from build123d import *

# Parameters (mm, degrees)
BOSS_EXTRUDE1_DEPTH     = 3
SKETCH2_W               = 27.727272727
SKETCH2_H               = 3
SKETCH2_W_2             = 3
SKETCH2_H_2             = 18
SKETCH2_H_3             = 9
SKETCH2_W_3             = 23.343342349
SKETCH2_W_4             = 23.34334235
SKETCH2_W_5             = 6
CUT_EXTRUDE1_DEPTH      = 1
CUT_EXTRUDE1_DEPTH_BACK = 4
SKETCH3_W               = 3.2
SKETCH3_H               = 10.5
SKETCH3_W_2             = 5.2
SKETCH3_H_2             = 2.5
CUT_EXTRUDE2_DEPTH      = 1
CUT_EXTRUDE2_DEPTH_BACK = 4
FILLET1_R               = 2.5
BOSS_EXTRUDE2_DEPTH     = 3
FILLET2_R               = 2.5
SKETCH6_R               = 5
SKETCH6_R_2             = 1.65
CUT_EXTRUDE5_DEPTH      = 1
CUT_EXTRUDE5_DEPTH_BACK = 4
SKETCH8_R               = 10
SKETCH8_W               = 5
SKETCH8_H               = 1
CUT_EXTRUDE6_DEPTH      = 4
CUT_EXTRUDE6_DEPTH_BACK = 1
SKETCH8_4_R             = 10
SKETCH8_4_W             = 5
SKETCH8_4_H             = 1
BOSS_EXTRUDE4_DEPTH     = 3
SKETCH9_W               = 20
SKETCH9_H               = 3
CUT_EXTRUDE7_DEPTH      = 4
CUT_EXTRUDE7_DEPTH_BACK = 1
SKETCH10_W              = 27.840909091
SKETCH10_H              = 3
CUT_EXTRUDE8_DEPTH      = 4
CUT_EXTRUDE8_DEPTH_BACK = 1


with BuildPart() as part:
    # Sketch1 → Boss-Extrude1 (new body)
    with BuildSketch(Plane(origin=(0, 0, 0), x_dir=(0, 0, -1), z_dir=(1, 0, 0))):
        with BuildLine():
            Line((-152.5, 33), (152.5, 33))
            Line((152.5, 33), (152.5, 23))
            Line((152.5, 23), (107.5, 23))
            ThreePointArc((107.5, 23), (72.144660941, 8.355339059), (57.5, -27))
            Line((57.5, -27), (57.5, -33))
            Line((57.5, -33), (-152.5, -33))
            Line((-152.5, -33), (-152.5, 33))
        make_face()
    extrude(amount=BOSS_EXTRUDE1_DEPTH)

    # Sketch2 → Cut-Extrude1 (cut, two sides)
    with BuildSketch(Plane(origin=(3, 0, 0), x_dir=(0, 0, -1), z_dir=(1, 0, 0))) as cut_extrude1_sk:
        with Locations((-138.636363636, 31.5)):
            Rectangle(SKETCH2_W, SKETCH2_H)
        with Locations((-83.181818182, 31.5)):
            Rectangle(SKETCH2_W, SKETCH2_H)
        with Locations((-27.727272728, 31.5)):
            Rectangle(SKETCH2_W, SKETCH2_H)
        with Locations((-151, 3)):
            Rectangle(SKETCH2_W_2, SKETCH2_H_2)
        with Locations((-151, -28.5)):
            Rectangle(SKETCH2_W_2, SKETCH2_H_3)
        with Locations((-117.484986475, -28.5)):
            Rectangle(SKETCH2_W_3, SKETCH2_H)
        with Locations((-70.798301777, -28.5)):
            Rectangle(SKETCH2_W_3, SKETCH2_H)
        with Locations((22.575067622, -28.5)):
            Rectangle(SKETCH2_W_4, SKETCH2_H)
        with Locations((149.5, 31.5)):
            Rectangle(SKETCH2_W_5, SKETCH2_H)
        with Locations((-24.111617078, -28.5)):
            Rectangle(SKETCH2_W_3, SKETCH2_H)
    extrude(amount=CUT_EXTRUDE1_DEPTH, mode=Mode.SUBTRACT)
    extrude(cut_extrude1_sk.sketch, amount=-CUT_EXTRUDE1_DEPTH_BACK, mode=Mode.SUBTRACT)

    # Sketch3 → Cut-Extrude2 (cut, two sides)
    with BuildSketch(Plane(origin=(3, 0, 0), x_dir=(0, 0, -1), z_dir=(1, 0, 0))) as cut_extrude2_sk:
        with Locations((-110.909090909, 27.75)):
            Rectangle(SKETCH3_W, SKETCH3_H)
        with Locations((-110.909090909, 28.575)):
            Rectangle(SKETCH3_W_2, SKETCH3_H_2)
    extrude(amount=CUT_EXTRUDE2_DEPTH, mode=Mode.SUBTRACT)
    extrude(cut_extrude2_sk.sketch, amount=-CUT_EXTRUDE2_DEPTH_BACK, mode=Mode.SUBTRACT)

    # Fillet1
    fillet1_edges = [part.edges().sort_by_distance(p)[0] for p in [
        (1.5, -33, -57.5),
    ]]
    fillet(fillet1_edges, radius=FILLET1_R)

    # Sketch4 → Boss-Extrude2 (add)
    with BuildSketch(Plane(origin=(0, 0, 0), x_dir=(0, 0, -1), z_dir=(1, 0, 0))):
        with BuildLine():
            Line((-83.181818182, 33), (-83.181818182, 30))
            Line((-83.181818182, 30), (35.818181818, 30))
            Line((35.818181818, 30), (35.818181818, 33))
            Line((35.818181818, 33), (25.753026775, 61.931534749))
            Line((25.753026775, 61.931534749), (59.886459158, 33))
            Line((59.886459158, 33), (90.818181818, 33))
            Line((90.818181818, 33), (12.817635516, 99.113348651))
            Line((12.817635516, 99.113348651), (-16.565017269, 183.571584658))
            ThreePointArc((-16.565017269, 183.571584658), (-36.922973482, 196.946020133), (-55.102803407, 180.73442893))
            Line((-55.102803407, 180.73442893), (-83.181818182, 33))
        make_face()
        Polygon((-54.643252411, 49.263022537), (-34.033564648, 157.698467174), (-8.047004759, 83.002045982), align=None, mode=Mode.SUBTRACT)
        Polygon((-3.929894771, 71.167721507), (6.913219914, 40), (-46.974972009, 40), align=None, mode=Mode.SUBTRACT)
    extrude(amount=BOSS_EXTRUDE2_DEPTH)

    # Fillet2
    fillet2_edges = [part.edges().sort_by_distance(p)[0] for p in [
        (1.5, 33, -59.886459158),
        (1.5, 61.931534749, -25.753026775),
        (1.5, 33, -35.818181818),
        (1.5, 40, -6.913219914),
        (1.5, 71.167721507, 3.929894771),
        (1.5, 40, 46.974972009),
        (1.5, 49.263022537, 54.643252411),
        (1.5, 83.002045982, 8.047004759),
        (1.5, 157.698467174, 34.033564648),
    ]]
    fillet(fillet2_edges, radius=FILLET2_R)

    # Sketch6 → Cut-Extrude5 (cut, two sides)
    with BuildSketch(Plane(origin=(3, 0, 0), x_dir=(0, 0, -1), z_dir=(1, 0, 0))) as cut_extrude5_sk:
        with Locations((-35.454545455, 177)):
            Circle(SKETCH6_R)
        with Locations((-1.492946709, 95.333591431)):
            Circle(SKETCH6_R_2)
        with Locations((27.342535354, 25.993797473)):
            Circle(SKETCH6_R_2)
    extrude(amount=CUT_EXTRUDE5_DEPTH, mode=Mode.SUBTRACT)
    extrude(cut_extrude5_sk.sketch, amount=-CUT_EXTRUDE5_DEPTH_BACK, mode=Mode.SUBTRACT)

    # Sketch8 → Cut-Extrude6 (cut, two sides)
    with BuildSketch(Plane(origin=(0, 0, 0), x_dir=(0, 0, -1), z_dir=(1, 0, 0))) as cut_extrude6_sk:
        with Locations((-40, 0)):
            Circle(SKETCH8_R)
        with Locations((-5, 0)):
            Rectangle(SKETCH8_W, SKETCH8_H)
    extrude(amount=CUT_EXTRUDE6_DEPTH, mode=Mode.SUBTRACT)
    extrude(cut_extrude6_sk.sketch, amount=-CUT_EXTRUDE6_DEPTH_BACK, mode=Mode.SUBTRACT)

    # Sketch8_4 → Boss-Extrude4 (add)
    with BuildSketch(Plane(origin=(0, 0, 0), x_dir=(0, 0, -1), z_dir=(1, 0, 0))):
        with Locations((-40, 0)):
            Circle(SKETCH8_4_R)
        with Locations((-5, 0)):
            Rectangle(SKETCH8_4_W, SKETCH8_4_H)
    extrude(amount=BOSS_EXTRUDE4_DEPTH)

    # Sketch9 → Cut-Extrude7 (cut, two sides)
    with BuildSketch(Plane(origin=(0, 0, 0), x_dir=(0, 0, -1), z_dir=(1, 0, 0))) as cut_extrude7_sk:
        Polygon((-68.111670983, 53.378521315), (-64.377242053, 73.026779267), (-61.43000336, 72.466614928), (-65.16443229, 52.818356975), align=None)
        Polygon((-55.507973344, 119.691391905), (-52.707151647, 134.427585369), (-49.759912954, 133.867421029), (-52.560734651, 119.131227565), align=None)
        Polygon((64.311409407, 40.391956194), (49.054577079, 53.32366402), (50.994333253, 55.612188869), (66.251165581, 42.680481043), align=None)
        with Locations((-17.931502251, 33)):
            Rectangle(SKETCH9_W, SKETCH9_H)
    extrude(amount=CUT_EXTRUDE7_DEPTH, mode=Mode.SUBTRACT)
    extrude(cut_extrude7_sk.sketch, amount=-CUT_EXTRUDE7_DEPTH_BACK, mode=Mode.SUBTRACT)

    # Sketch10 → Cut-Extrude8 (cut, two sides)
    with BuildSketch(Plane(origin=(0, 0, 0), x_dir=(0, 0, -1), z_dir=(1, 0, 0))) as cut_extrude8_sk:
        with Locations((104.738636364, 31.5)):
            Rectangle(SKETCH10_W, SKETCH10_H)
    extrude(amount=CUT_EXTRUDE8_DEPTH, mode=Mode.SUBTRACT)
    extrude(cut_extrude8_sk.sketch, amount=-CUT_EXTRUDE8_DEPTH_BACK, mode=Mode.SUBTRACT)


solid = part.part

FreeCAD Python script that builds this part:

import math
import FreeCAD as App
import Part
import Sketcher
from FreeCAD import Vector
Q = App.Units.Quantity


def edges_at(feature, points):
    """Names of the edges that pass closest to the given points."""
    edges = feature.Shape.Edges
    near = lambda p: min(range(len(edges)), key=lambda i: edges[i].distToShape(Part.Vertex(*p))[0])
    return sorted({f"Edge{near(p) + 1}" for p in points})

doc = App.newDocument("Part")
params = doc.addObject("Spreadsheet::Sheet", "Params")
for row, (alias, value) in enumerate([
    ("sketch1_radius", "50 mm"),
    ("sketch1_width", "66 mm"),
    ("sketch1_width2", "6 mm"),
    ("sketch1_height", "305 mm"),
    ("sketch1_height2", "210 mm"),
    ("pad1_length", "3 mm"),
    ("sketch2_width", "3 mm"),
    ("sketch2_width2", "18 mm"),
    ("sketch2_width3", "9 mm"),
    ("sketch2_height", "6 mm"),
    ("sketch3_height", "1 mm"),
    ("sketch3_width", "2.5 mm"),
    ("sketch3_height2", "3.2 mm"),
    ("fillet_radius", "2.5 mm"),
    ("sketch4_radius", "20 mm"),
    ("sketch4_width", "3 mm"),
    ("sketch4_height", "119 mm"),
    ("sketch4_length", "33 mm"),
    ("pad2_length", "3 mm"),
    ("fillet2_radius", "2.5 mm"),
    ("sketch5_diameter", "10 mm"),
    ("sketch5_diameter2", "3.3 mm"),
    ("sketch6_diameter", "20 mm"),
    ("sketch6_width", "1 mm"),
    ("sketch6_height", "5 mm"),
    ("sketch7_diameter", "20 mm"),
    ("sketch7_width", "1 mm"),
    ("sketch7_height", "5 mm"),
    ("pad3_length", "3 mm"),
    ("sketch8_width", "3 mm"),
    ("sketch8_height", "20 mm"),
    ("sketch8_length", "20 mm"),
    ("sketch8_length2", "3 mm"),
    ("sketch8_length3", "15 mm"),
    ("sketch9_width", "3 mm"),
], start=1):
    params.set(f"A{row}", alias)
    params.set(f"B{row}", "=" + value)
    params.setAlias(f"B{row}", alias)

body = doc.addObject("PartDesign::Body", "Body")

# Sketch on YZ plane
sketch1 = body.newObject("Sketcher::SketchObject", "Sketch")
sketch1.AttachmentSupport = (doc.getObject("YZ_Plane"), [""])
sketch1.MapMode = "FlatFace"
sketch1.addGeometry([
    Part.LineSegment(Vector(33, -152.5, 0), Vector(33, 152.5, 0)),  # 0
    Part.LineSegment(Vector(33, 152.5, 0), Vector(-33, 152.5, 0)),  # 1
    Part.LineSegment(Vector(-33, 152.5, 0), Vector(-33, -57.5, 0)),  # 2
    Part.LineSegment(Vector(-33, -57.5, 0), Vector(-27, -57.5, 0)),  # 3
    Part.ArcOfCircle(Part.Circle(Vector(-27, -107.5, 0), Vector(0, 0, 1), 50), math.radians(0), math.radians(90)),  # 4
    Part.LineSegment(Vector(23, -107.5, 0), Vector(23, -152.5, 0)),  # 5
    Part.LineSegment(Vector(23, -152.5, 0), Vector(33, -152.5, 0)),  # 6
], False)
sketch1.addConstraint([
    Sketcher.Constraint("Coincident", 0, 2, 1, 1),
    Sketcher.Constraint("Coincident", 1, 2, 2, 1),
    Sketcher.Constraint("Coincident", 2, 2, 3, 1),
    Sketcher.Constraint("Tangent", 3, 2, 4, 2),
    Sketcher.Constraint("Tangent", 4, 1, 5, 1),
    Sketcher.Constraint("Coincident", 5, 2, 6, 1),
    Sketcher.Constraint("Coincident", 6, 2, 0, 1),
    Sketcher.Constraint("Vertical", 0),
    Sketcher.Constraint("Horizontal", 1),
    Sketcher.Constraint("Vertical", 2),
    Sketcher.Constraint("Horizontal", 3),
    Sketcher.Constraint("Vertical", 5),
    Sketcher.Constraint("Horizontal", 6),
    Sketcher.Constraint("Symmetric", 1, 2, 6, 2, -1, 1),
    Sketcher.Constraint("Radius", 4, Q("50 mm")),
    Sketcher.Constraint("DistanceX", 1, 2, 1, 1, Q("66 mm")),
    Sketcher.Constraint("DistanceX", 3, 1, 3, 2, Q("6 mm")),
    Sketcher.Constraint("DistanceY", 0, 1, 0, 2, Q("305 mm")),
    Sketcher.Constraint("DistanceY", 2, 2, 2, 1, Q("210 mm")),
])
sketch1.setExpression("Constraints[14]", "Params.sketch1_radius")
sketch1.setExpression("Constraints[15]", "Params.sketch1_width")
sketch1.setExpression("Constraints[16]", "Params.sketch1_width2")
sketch1.setExpression("Constraints[17]", "Params.sketch1_height")
sketch1.setExpression("Constraints[18]", "Params.sketch1_height2")
pad1 = body.newObject("PartDesign::Pad", "Pad")
pad1.Profile = sketch1
pad1.setExpression("Length", "Params.pad1_length")

# Sketch on YZ plane
sketch2 = body.newObject("Sketcher::SketchObject", "Sketch001")
sketch2.AttachmentSupport = (doc.getObject("YZ_Plane"), [""])
sketch2.MapMode = "FlatFace"
sketch2.AttachmentOffset = App.Placement(Vector(0, 0, 3), App.Rotation())
sketch2.addGeometry([
    Part.LineSegment(Vector(33, 152.5, 0), Vector(30, 152.5, 0)),  # 0
    Part.LineSegment(Vector(30, 152.5, 0), Vector(30, 124.772727, 0)),  # 1
    Part.LineSegment(Vector(30, 124.772727, 0), Vector(33, 124.772727, 0)),  # 2
    Part.LineSegment(Vector(33, 124.772727, 0), Vector(33, 152.5, 0)),  # 3
    Part.LineSegment(Vector(33, 97.045455, 0), Vector(30, 97.045455, 0)),  # 4
    Part.LineSegment(Vector(30, 97.045455, 0), Vector(30, 69.318182, 0)),  # 5
    Part.LineSegment(Vector(30, 69.318182, 0), Vector(33, 69.318182, 0)),  # 6
    Part.LineSegment(Vector(33, 69.318182, 0), Vector(33, 97.045455, 0)),  # 7
    Part.LineSegment(Vector(33, 41.590909, 0), Vector(30, 41.590909, 0)),  # 8
    Part.LineSegment(Vector(30, 41.590909, 0), Vector(30, 13.863636, 0)),  # 9
    Part.LineSegment(Vector(30, 13.863636, 0), Vector(33, 13.863636, 0)),  # 10
    Part.LineSegment(Vector(33, 13.863636, 0), Vector(33, 41.590909, 0)),  # 11
    Part.LineSegment(Vector(12, 152.5, 0), Vector(-6, 152.5, 0)),  # 12
    Part.LineSegment(Vector(-6, 152.5, 0), Vector(-6, 149.5, 0)),  # 13
    Part.LineSegment(Vector(-6, 149.5, 0), Vector(12, 149.5, 0)),  # 14
    Part.LineSegment(Vector(12, 149.5, 0), Vector(12, 152.5, 0)),  # 15
    Part.LineSegment(Vector(-24, 152.5, 0), Vector(-33, 152.5, 0)),  # 16
    Part.LineSegment(Vector(-33, 152.5, 0), Vector(-33, 149.5, 0)),  # 17
    Part.LineSegment(Vector(-33, 149.5, 0), Vector(-24, 149.5, 0)),  # 18
    Part.LineSegment(Vector(-24, 149.5, 0), Vector(-24, 152.5, 0)),  # 19
    Part.LineSegment(Vector(-27, 129.156658, 0), Vector(-30, 129.156658, 0)),  # 20
    Part.LineSegment(Vector(-30, 129.156658, 0), Vector(-30, 105.813315, 0)),  # 21
    Part.LineSegment(Vector(-30, 105.813315, 0), Vector(-27, 105.813315, 0)),  # 22
    Part.LineSegment(Vector(-27, 105.813315, 0), Vector(-27, 129.156658, 0)),  # 23
    Part.LineSegment(Vector(-27, 82.469973, 0), Vector(-30, 82.469973, 0)),  # 24
    Part.LineSegment(Vector(-30, 82.469973, 0), Vector(-30, 59.126631, 0)),  # 25
    Part.LineSegment(Vector(-30, 59.126631, 0), Vector(-27, 59.126631, 0)),  # 26
    Part.LineSegment(Vector(-27, 59.126631, 0), Vector(-27, 82.469973, 0)),  # 27
    Part.LineSegment(Vector(-27, -10.903396, 0), Vector(-30, -10.903396, 0)),  # 28
    Part.LineSegment(Vector(-30, -10.903396, 0), Vector(-30, -34.246739, 0)),  # 29
    Part.LineSegment(Vector(-30, -34.246739, 0), Vector(-27, -34.246739, 0)),  # 30
    Part.LineSegment(Vector(-27, -34.246739, 0), Vector(-27, -10.903396, 0)),  # 31
    Part.LineSegment(Vector(33, -146.5, 0), Vector(30, -146.5, 0)),  # 32
    Part.LineSegment(Vector(30, -146.5, 0), Vector(30, -152.5, 0)),  # 33
    Part.LineSegment(Vector(30, -152.5, 0), Vector(33, -152.5, 0)),  # 34
    Part.LineSegment(Vector(33, -152.5, 0), Vector(33, -146.5, 0)),  # 35
    Part.LineSegment(Vector(-27, 35.783288, 0), Vector(-30, 35.783288, 0)),  # 36
    Part.LineSegment(Vector(-30, 35.783288, 0), Vector(-30, 12.439946, 0)),  # 37
    Part.LineSegment(Vector(-30, 12.439946, 0), Vector(-27, 12.439946, 0)),  # 38
    Part.LineSegment(Vector(-27, 12.439946, 0), Vector(-27, 35.783288, 0)),  # 39
], False)
sketch2.addConstraint([
    Sketcher.Constraint("Coincident", 0, 2, 1, 1),
    Sketcher.Constraint("Coincident", 1, 2, 2, 1),
    Sketcher.Constraint("Coincident", 2, 2, 3, 1),
    Sketcher.Constraint("Coincident", 3, 2, 0, 1),
    Sketcher.Constraint("Coincident", 4, 2, 5, 1),
    Sketcher.Constraint("Coincident", 5, 2, 6, 1),
    Sketcher.Constraint("Coincident", 6, 2, 7, 1),
    Sketcher.Constraint("Coincident", 7, 2, 4, 1),
    Sketcher.Constraint("Coincident", 8, 2, 9, 1),
    Sketcher.Constraint("Coincident", 9, 2, 10, 1),
    Sketcher.Constraint("Coincident", 10, 2, 11, 1),
    Sketcher.Constraint("Coincident", 11, 2, 8, 1),
    Sketcher.Constraint("Coincident", 12, 2, 13, 1),
    Sketcher.Constraint("Coincident", 13, 2, 14, 1),
    Sketcher.Constraint("Coincident", 14, 2, 15, 1),
    Sketcher.Constraint("Coincident", 15, 2, 12, 1),
    Sketcher.Constraint("Coincident", 16, 2, 17, 1),
    Sketcher.Constraint("Coincident", 17, 2, 18, 1),
    Sketcher.Constraint("Coincident", 18, 2, 19, 1),
    Sketcher.Constraint("Coincident", 19, 2, 16, 1),
    Sketcher.Constraint("Coincident", 20, 2, 21, 1),
    Sketcher.Constraint("Coincident", 21, 2, 22, 1),
    Sketcher.Constraint("Coincident", 22, 2, 23, 1),
    Sketcher.Constraint("Coincident", 23, 2, 20, 1),
    Sketcher.Constraint("Coincident", 24, 2, 25, 1),
    Sketcher.Constraint("Coincident", 25, 2, 26, 1),
    Sketcher.Constraint("Coincident", 26, 2, 27, 1),
    Sketcher.Constraint("Coincident", 27, 2, 24, 1),
    Sketcher.Constraint("Coincident", 28, 2, 29, 1),
    Sketcher.Constraint("Coincident", 29, 2, 30, 1),
    Sketcher.Constraint("Coincident", 30, 2, 31, 1),
    Sketcher.Constraint("Coincident", 31, 2, 28, 1),
    Sketcher.Constraint("Coincident", 32, 2, 33, 1),
    Sketcher.Constraint("Coincident", 33, 2, 34, 1),
    Sketcher.Constraint("Coincident", 34, 2, 35, 1),
    Sketcher.Constraint("Coincident", 35, 2, 32, 1),
    Sketcher.Constraint("Coincident", 36, 2, 37, 1),
    Sketcher.Constraint("Coincident", 37, 2, 38, 1),
    Sketcher.Constraint("Coincident", 38, 2, 39, 1),
    Sketcher.Constraint("Coincident", 39, 2, 36, 1),
    Sketcher.Constraint("Horizontal", 0),
    Sketcher.Constraint("Vertical", 1),
    Sketcher.Constraint("Horizontal", 2),
    Sketcher.Constraint("Vertical", 3),
    Sketcher.Constraint("Horizontal", 4),
    Sketcher.Constraint("Vertical", 5),
    Sketcher.Constraint("Horizontal", 6),
    Sketcher.Constraint("Vertical", 7),
    Sketcher.Constraint("Horizontal", 8),
    Sketcher.Constraint("Vertical", 9),
    Sketcher.Constraint("Horizontal", 10),
    Sketcher.Constraint("Vertical", 11),
    Sketcher.Constraint("Horizontal", 12),
    Sketcher.Constraint("Vertical", 13),
    Sketcher.Constraint("Horizontal", 14),
    Sketcher.Constraint("Vertical", 15),
    Sketcher.Constraint("Horizontal", 16),
    Sketcher.Constraint("Vertical", 17),
    Sketcher.Constraint("Horizontal", 18),
    Sketcher.Constraint("Vertical", 19),
    Sketcher.Constraint("Horizontal", 20),
    Sketcher.Constraint("Vertical", 21),
    Sketcher.Constraint("Horizontal", 22),
    Sketcher.Constraint("Vertical", 23),
    Sketcher.Constraint("Horizontal", 24),
    Sketcher.Constraint("Vertical", 25),
    Sketcher.Constraint("Horizontal", 26),
    Sketcher.Constraint("Vertical", 27),
    Sketcher.Constraint("Horizontal", 28),
    Sketcher.Constraint("Vertical", 29),
    Sketcher.Constraint("Horizontal", 30),
    Sketcher.Constraint("Vertical", 31),
    Sketcher.Constraint("Horizontal", 32),
    Sketcher.Constraint("Vertical", 33),
    Sketcher.Constraint("Horizontal", 34),
    Sketcher.Constraint("Vertical", 35),
    Sketcher.Constraint("Horizontal", 36),
    Sketcher.Constraint("Vertical", 37),
    Sketcher.Constraint("Horizontal", 38),
    Sketcher.Constraint("Vertical", 39),
    Sketcher.Constraint("Symmetric", 16, 2, 34, 2, -1, 1),
    Sketcher.Constraint("Symmetric", 3, 2, 16, 2, -2),
    Sketcher.Constraint("Horizontal", 3, 2, 12, 2),
    Sketcher.Constraint("Horizontal", 14, 2, 17, 2),
    Sketcher.Constraint("Vertical", 1, 2, 4, 2),
    Sketcher.Constraint("Vertical", 3, 2, 6, 2),
    Sketcher.Constraint("Vertical", 5, 2, 8, 2),
    Sketcher.Constraint("Vertical", 7, 2, 10, 2),
    Sketcher.Constraint("Vertical", 21, 2, 24, 2),
    Sketcher.Constraint("Vertical", 23, 2, 26, 2),
    Sketcher.Constraint("Vertical", 25, 2, 28, 2),
    Sketcher.Constraint("Vertical", 27, 2, 30, 2),
    Sketcher.Constraint("Vertical", 9, 2, 32, 2),
    Sketcher.Constraint("Vertical", 29, 2, 36, 2),
    Sketcher.Constraint("Vertical", 31, 2, 38, 2),
    Sketcher.Constraint("Equal", 10, 20),
    Sketcher.Constraint("Equal", 3, 5),
    Sketcher.Constraint("Equal", 7, 9),
    Sketcher.Constraint("Equal", 38, 13),
    Sketcher.Constraint("Equal", 23, 25),
    Sketcher.Constraint("Equal", 27, 29),
    Sketcher.Constraint("Equal", 31, 37),
    Sketcher.Constraint("DistanceX", 0, 2, 0, 1, Q("3 mm")),
    Sketcher.Constraint("DistanceX", 12, 2, 12, 1, Q("18 mm")),
    Sketcher.Constraint("DistanceX", 16, 2, 16, 1, Q("9 mm")),
    Sketcher.Constraint("DistanceY", 33, 2, 33, 1, Q("6 mm")),
    Sketcher.Constraint("DistanceX", -1, 1, 0, 2, Q("30 mm")),
    Sketcher.Constraint("DistanceX", 12, 2, -1, 1, Q("6 mm")),
    Sketcher.Constraint("DistanceX", 20, 2, -1, 1, Q("30 mm")),
    Sketcher.Constraint("DistanceY", -1, 1, 0, 2, Q("152.5 mm")),
    Sketcher.Constraint("DistanceY", 1, 2, 1, 1, Q("27.727273 mm")),
    Sketcher.Constraint("DistanceY", 21, 2, 21, 1, Q("23.343342 mm")),
    Sketcher.Constraint("DistanceY", -1, 1, 5, 2, Q("69.318182 mm")),
    Sketcher.Constraint("DistanceY", -1, 1, 8, 2, Q("41.590909 mm")),
    Sketcher.Constraint("DistanceY", -1, 1, 25, 2, Q("59.126631 mm")),
    Sketcher.Constraint("DistanceY", 29, 2, -1, 1, Q("34.246739 mm")),
    Sketcher.Constraint("DistanceY", -1, 1, 36, 2, Q("35.783288 mm")),
    Sketcher.Constraint("DistanceY", -1, 1, 20, 2, Q("129.156658 mm")),
])
sketch2.setExpression("Constraints[102]", "Params.sketch2_width")
sketch2.setExpression("Constraints[103]", "Params.sketch2_width2")
sketch2.setExpression("Constraints[104]", "Params.sketch2_width3")
sketch2.setExpression("Constraints[105]", "Params.sketch2_height")
pocket1 = body.newObject("PartDesign::Pocket", "Pocket")
pocket1.Profile = sketch2
pocket1.Type = "ThroughAll"
pocket1.Midplane = True

# Sketch on YZ plane
sketch3 = body.newObject("Sketcher::SketchObject", "Sketch002")
sketch3.AttachmentSupport = (doc.getObject("YZ_Plane"), [""])
sketch3.MapMode = "FlatFace"
sketch3.AttachmentOffset = App.Placement(Vector(0, 0, 3), App.Rotation())
sketch3.addGeometry([
    Part.LineSegment(Vector(27.325, 112.509091, 0), Vector(22.5, 112.509091, 0)),  # 0
    Part.LineSegment(Vector(22.5, 112.509091, 0), Vector(22.5, 109.309091, 0)),  # 1
    Part.LineSegment(Vector(22.5, 109.309091, 0), Vector(27.325, 109.309091, 0)),  # 2
    Part.LineSegment(Vector(27.325, 109.309091, 0), Vector(27.325, 108.309091, 0)),  # 3
    Part.LineSegment(Vector(27.325, 108.309091, 0), Vector(29.825, 108.309091, 0)),  # 4
    Part.LineSegment(Vector(29.825, 108.309091, 0), Vector(29.825, 109.309091, 0)),  # 5
    Part.LineSegment(Vector(29.825, 109.309091, 0), Vector(33, 109.309091, 0)),  # 6
    Part.LineSegment(Vector(33, 109.309091, 0), Vector(33, 112.509091, 0)),  # 7
    Part.LineSegment(Vector(33, 112.509091, 0), Vector(29.825, 112.509091, 0)),  # 8
    Part.LineSegment(Vector(29.825, 112.509091, 0), Vector(29.825, 113.509091, 0)),  # 9
    Part.LineSegment(Vector(29.825, 113.509091, 0), Vector(27.325, 113.509091, 0)),  # 10
    Part.LineSegment(Vector(27.325, 113.509091, 0), Vector(27.325, 112.509091, 0)),  # 11
], False)
sketch3.addConstraint([
    Sketcher.Constraint("Coincident", 0, 2, 1, 1),
    Sketcher.Constraint("Coincident", 1, 2, 2, 1),
    Sketcher.Constraint("Coincident", 2, 2, 3, 1),
    Sketcher.Constraint("Coincident", 3, 2, 4, 1),
    Sketcher.Constraint("Coincident", 4, 2, 5, 1),
    Sketcher.Constraint("Coincident", 5, 2, 6, 1),
    Sketcher.Constraint("Coincident", 6, 2, 7, 1),
    Sketcher.Constraint("Coincident", 7, 2, 8, 1),
    Sketcher.Constraint("Coincident", 8, 2, 9, 1),
    Sketcher.Constraint("Coincident", 9, 2, 10, 1),
    Sketcher.Constraint("Coincident", 10, 2, 11, 1),
    Sketcher.Constraint("Coincident", 11, 2, 0, 1),
    Sketcher.Constraint("Horizontal", 0),
    Sketcher.Constraint("Vertical", 1),
    Sketcher.Constraint("Horizontal", 2),
    Sketcher.Constraint("Vertical", 3),
    Sketcher.Constraint("Horizontal", 4),
    Sketcher.Constraint("Vertical", 5),
    Sketcher.Constraint("Horizontal", 6),
    Sketcher.Constraint("Vertical", 7),
    Sketcher.Constraint("Horizontal", 8),
    Sketcher.Constraint("Vertical", 9),
    Sketcher.Constraint("Horizontal", 10),
    Sketcher.Constraint("Vertical", 11),
    Sketcher.Constraint("Horizontal", 2, 2, 5, 2),
    Sketcher.Constraint("Horizontal", 0, 2, 7, 2),
    Sketcher.Constraint("Vertical", 5, 2, 8, 2),
    Sketcher.Constraint("Vertical", 3, 2, 10, 2),
    Sketcher.Constraint("Equal", 5, 9),
    Sketcher.Constraint("DistanceY", 3, 2, 3, 1, Q("1 mm")),
    Sketcher.Constraint("DistanceX", 4, 1, 4, 2, Q("2.5 mm")),
    Sketcher.Constraint("DistanceY", 1, 2, 1, 1, Q("3.2 mm")),
    Sketcher.Constraint("DistanceX", -1, 1, 6, 2, Q("33 mm")),
    Sketcher.Constraint("DistanceX", -1, 1, 0, 2, Q("22.5 mm")),
    Sketcher.Constraint("DistanceX", 0, 2, 0, 1, Q("4.825 mm")),
    Sketcher.Constraint("DistanceY", -1, 1, 0, 2, Q("112.509091 mm")),
])
sketch3.setExpression("Constraints[29]", "Params.sketch3_height")
sketch3.setExpression("Constraints[30]", "Params.sketch3_width")
sketch3.setExpression("Constraints[31]", "Params.sketch3_height2")
pocket2 = body.newObject("PartDesign::Pocket", "Pocket001")
pocket2.Profile = sketch3
pocket2.Type = "ThroughAll"
pocket2.Midplane = True
doc.recompute()

fillet = body.newObject("PartDesign::Fillet", "Fillet")
fillet.Base = (pocket2, edges_at(pocket2, [(1.5, -33, -57.5)]))
fillet.setExpression("Radius", "Params.fillet_radius")

# Sketch on YZ plane
sketch4 = body.newObject("Sketcher::SketchObject", "Sketch003")
sketch4.AttachmentSupport = (doc.getObject("YZ_Plane"), [""])
sketch4.MapMode = "FlatFace"
sketch4.addGeometry([
    Part.LineSegment(Vector(33, 83.181818, 0), Vector(30, 83.181818, 0)),  # 0
    Part.LineSegment(Vector(30, 83.181818, 0), Vector(30, -35.818182, 0)),  # 1
    Part.LineSegment(Vector(30, -35.818182, 0), Vector(33, -35.818182, 0)),  # 2
    Part.LineSegment(Vector(33, -35.818182, 0), Vector(61.931535, -25.753027, 0)),  # 3
    Part.LineSegment(Vector(61.931535, -25.753027, 0), Vector(33, -59.886459, 0)),  # 4
    Part.LineSegment(Vector(33, -59.886459, 0), Vector(33, -90.818182, 0)),  # 5
    Part.LineSegment(Vector(33, -90.818182, 0), Vector(99.113349, -12.817636, 0)),  # 6
    Part.LineSegment(Vector(99.113349, -12.817636, 0), Vector(183.571585, 16.565017, 0)),  # 7
    Part.ArcOfCircle(Part.Circle(Vector(177, 35.454545, 0), Vector(0, 0, 1), 20), math.radians(-70.817437), math.radians(79.238487)),  # 8
    Part.LineSegment(Vector(180.734429, 55.102803, 0), Vector(33, 83.181818, 0)),  # 9
    Part.LineSegment(Vector(40, 46.974972, 0), Vector(71.167722, 3.929895, 0)),  # 10
    Part.LineSegment(Vector(71.167722, 3.929895, 0), Vector(40, -6.91322, 0)),  # 11
    Part.LineSegment(Vector(40, -6.91322, 0), Vector(40, 46.974972, 0)),  # 12
    Part.LineSegment(Vector(83.002046, 8.047005, 0), Vector(49.263023, 54.643252, 0)),  # 13
    Part.LineSegment(Vector(49.263023, 54.643252, 0), Vector(157.698467, 34.033565, 0)),  # 14
    Part.LineSegment(Vector(157.698467, 34.033565, 0), Vector(83.002046, 8.047005, 0)),  # 15
], False)
sketch4.addConstraint([
    Sketcher.Constraint("Coincident", 0, 2, 1, 1),
    Sketcher.Constraint("Coincident", 1, 2, 2, 1),
    Sketcher.Constraint("Coincident", 2, 2, 3, 1),
    Sketcher.Constraint("Coincident", 3, 2, 4, 1),
    Sketcher.Constraint("Coincident", 4, 2, 5, 1),
    Sketcher.Constraint("Coincident", 5, 2, 6, 1),
    Sketcher.Constraint("Coincident", 6, 2, 7, 1),
    Sketcher.Constraint("Tangent", 7, 2, 8, 1),
    Sketcher.Constraint("Tangent", 8, 2, 9, 1),
    Sketcher.Constraint("Coincident", 9, 2, 0, 1),
    Sketcher.Constraint("Coincident", 10, 2, 11, 1),
    Sketcher.Constraint("Coincident", 11, 2, 12, 1),
    Sketcher.Constraint("Coincident", 12, 2, 10, 1),
    Sketcher.Constraint("Coincident", 13, 2, 14, 1),
    Sketcher.Constraint("Coincident", 14, 2, 15, 1),
    Sketcher.Constraint("Coincident", 15, 2, 13, 1),
    Sketcher.Constraint("Horizontal", 0),
    Sketcher.Constraint("Vertical", 1),
    Sketcher.Constraint("Horizontal", 2),
    Sketcher.Constraint("Vertical", 5),
    Sketcher.Constraint("Vertical", 12),
    Sketcher.Constraint("Parallel", 4, 6),
    Sketcher.Constraint("Parallel", 3, 7),
    Sketcher.Constraint("Parallel", 7, 11),
    Sketcher.Constraint("Parallel", 10, 13),
    Sketcher.Constraint("Parallel", 9, 14),
    Sketcher.Constraint("Parallel", 11, 15),
    Sketcher.Constraint("Vertical", 2, 2, 4, 2),
    Sketcher.Constraint("Vertical", 5, 2, 9, 2),
    Sketcher.Constraint("Radius", 8, Q("20 mm")),
    Sketcher.Constraint("DistanceX", 0, 2, 0, 1, Q("3 mm")),
    Sketcher.Constraint("DistanceY", 1, 2, 1, 1, Q("119 mm")),
    Sketcher.Constraint("Distance", 11, Q("33 mm")),
    Sketcher.Constraint("DistanceX", -1, 1, 8, 3, Q("177 mm")),
    Sketcher.Constraint("DistanceX", -1, 1, 0, 2, Q("30 mm")),
    Sketcher.Constraint("DistanceX", -1, 1, 11, 2, Q("40 mm")),
    Sketcher.Constraint("DistanceY", 5, 2, 2, 2, Q("55 mm")),
    Sketcher.Constraint("DistanceY", 3, 2, 12, 2, Q("72.727999 mm")),
    Sketcher.Constraint("DistanceY", 12, 1, 12, 2, Q("53.888192 mm")),
    Sketcher.Constraint("DistanceY", 2, 2, 7, 2, Q("52.383199 mm")),
    Sketcher.Constraint("DistanceX", 13, 2, 10, 2, Q("21.904699 mm")),
    Sketcher.Constraint("DistanceY", 6, 2, 14, 2, Q("46.8512 mm")),
    Sketcher.Constraint("Distance", 4, Q("44.74511 mm")),
    Sketcher.Constraint("Distance", 6, Q("102.249988 mm")),
    Sketcher.Constraint("Distance", 7, Q("89.423341 mm")),
    Sketcher.Constraint("Distance", 14, Q("110.37665 mm")),
    Sketcher.Constraint("DistanceY", -1, 1, 0, 2, Q("83.181818 mm")),
])
sketch4.setExpression("Constraints[29]", "Params.sketch4_radius")
sketch4.setExpression("Constraints[30]", "Params.sketch4_width")
sketch4.setExpression("Constraints[31]", "Params.sketch4_height")
sketch4.setExpression("Constraints[32]", "Params.sketch4_length")
pad2 = body.newObject("PartDesign::Pad", "Pad001")
pad2.Profile = sketch4
pad2.setExpression("Length", "Params.pad2_length")
doc.recompute()

fillet2 = body.newObject("PartDesign::Fillet", "Fillet001")
fillet2.Base = (pad2, edges_at(pad2, [
    (1.5, 33, -59.886),
    (1.5, 61.932, -25.753),
    (1.5, 33, -35.818),
    (1.5, 40, -6.913),
    (1.5, 71.168, 3.93),
    (1.5, 40, 46.975),
    (1.5, 49.263, 54.643),
    (1.5, 83.002, 8.047),
    (1.5, 157.698, 34.034),
]))
fillet2.setExpression("Radius", "Params.fillet2_radius")

# Sketch on YZ plane
sketch5 = body.newObject("Sketcher::SketchObject", "Sketch004")
sketch5.AttachmentSupport = (doc.getObject("YZ_Plane"), [""])
sketch5.MapMode = "FlatFace"
sketch5.AttachmentOffset = App.Placement(Vector(0, 0, 3), App.Rotation())
sketch5.addGeometry([
    Part.Circle(Vector(177, 35.454545, 0), Vector(0, 0, 1), 5),
    Part.Circle(Vector(95.333591, 1.492947, 0), Vector(0, 0, 1), 1.65),
    Part.Circle(Vector(25.993797, -27.342535, 0), Vector(0, 0, 1), 1.65),
], False)
sketch5.addConstraint([
    Sketcher.Constraint("Equal", 1, 2),
    Sketcher.Constraint("Diameter", 0, Q("10 mm")),
    Sketcher.Constraint("Diameter", 1, Q("3.3 mm")),
    Sketcher.Constraint("DistanceX", -1, 1, 0, 3, Q("177 mm")),
    Sketcher.Constraint("DistanceY", 1, 3, 0, 3, Q("33.961599 mm")),
    Sketcher.Constraint("DistanceX", -1, 1, 1, 3, Q("95.333591 mm")),
    Sketcher.Constraint("DistanceY", 2, 3, 0, 3, Q("62.797081 mm")),
    Sketcher.Constraint("DistanceY", -1, 1, 0, 3, Q("35.454545 mm")),
    Sketcher.Constraint("DistanceX", -1, 1, 2, 3, Q("25.993797 mm")),
])
sketch5.setExpression("Constraints[1]", "Params.sketch5_diameter")
sketch5.setExpression("Constraints[2]", "Params.sketch5_diameter2")
pocket3 = body.newObject("PartDesign::Pocket", "Pocket002")
pocket3.Profile = sketch5
pocket3.Type = "ThroughAll"
pocket3.Midplane = True

# Sketch on YZ plane
sketch6 = body.newObject("Sketcher::SketchObject", "Sketch005")
sketch6.AttachmentSupport = (doc.getObject("YZ_Plane"), [""])
sketch6.MapMode = "FlatFace"
sketch6.addGeometry([
    Part.Circle(Vector(0, 40, 0), Vector(0, 0, 1), 10),  # 0
    Part.LineSegment(Vector(0.5, 7.5, 0), Vector(-0.5, 7.5, 0)),  # 1
    Part.LineSegment(Vector(-0.5, 7.5, 0), Vector(-0.5, 2.5, 0)),  # 2
    Part.LineSegment(Vector(-0.5, 2.5, 0), Vector(0.5, 2.5, 0)),  # 3
    Part.LineSegment(Vector(0.5, 2.5, 0), Vector(0.5, 7.5, 0)),  # 4
], False)
sketch6.addConstraint([
    Sketcher.Constraint("Coincident", 1, 2, 2, 1),
    Sketcher.Constraint("Coincident", 2, 2, 3, 1),
    Sketcher.Constraint("Coincident", 3, 2, 4, 1),
    Sketcher.Constraint("Coincident", 4, 2, 1, 1),
    Sketcher.Constraint("Horizontal", 1),
    Sketcher.Constraint("Vertical", 2),
    Sketcher.Constraint("Horizontal", 3),
    Sketcher.Constraint("Vertical", 4),
    Sketcher.Constraint("PointOnObject", 0, 3, -2),
    Sketcher.Constraint("Diameter", 0, Q("20 mm")),
    Sketcher.Constraint("DistanceX", 1, 2, 1, 1, Q("1 mm")),
    Sketcher.Constraint("DistanceY", 2, 2, 2, 1, Q("5 mm")),
    Sketcher.Constraint("DistanceY", -1, 1, 0, 3, Q("40 mm")),
    Sketcher.Constraint("DistanceX", 1, 2, -1, 1, Q("0.5 mm")),
    Sketcher.Constraint("DistanceY", -1, 1, 1, 2, Q("7.5 mm")),
])
sketch6.setExpression("Constraints[9]", "Params.sketch6_diameter")
sketch6.setExpression("Constraints[10]", "Params.sketch6_width")
sketch6.setExpression("Constraints[11]", "Params.sketch6_height")
pocket4 = body.newObject("PartDesign::Pocket", "Pocket003")
pocket4.Profile = sketch6
pocket4.Type = "ThroughAll"
pocket4.Midplane = True

# Sketch on YZ plane
sketch7 = body.newObject("Sketcher::SketchObject", "Sketch006")
sketch7.AttachmentSupport = (doc.getObject("YZ_Plane"), [""])
sketch7.MapMode = "FlatFace"
sketch7.addGeometry([
    Part.Circle(Vector(0, 40, 0), Vector(0, 0, 1), 10),  # 0
    Part.LineSegment(Vector(0.5, 7.5, 0), Vector(-0.5, 7.5, 0)),  # 1
    Part.LineSegment(Vector(-0.5, 7.5, 0), Vector(-0.5, 2.5, 0)),  # 2
    Part.LineSegment(Vector(-0.5, 2.5, 0), Vector(0.5, 2.5, 0)),  # 3
    Part.LineSegment(Vector(0.5, 2.5, 0), Vector(0.5, 7.5, 0)),  # 4
], False)
sketch7.addConstraint([
    Sketcher.Constraint("Coincident", 1, 2, 2, 1),
    Sketcher.Constraint("Coincident", 2, 2, 3, 1),
    Sketcher.Constraint("Coincident", 3, 2, 4, 1),
    Sketcher.Constraint("Coincident", 4, 2, 1, 1),
    Sketcher.Constraint("Horizontal", 1),
    Sketcher.Constraint("Vertical", 2),
    Sketcher.Constraint("Horizontal", 3),
    Sketcher.Constraint("Vertical", 4),
    Sketcher.Constraint("PointOnObject", 0, 3, -2),
    Sketcher.Constraint("Diameter", 0, Q("20 mm")),
    Sketcher.Constraint("DistanceX", 1, 2, 1, 1, Q("1 mm")),
    Sketcher.Constraint("DistanceY", 2, 2, 2, 1, Q("5 mm")),
    Sketcher.Constraint("DistanceY", -1, 1, 0, 3, Q("40 mm")),
    Sketcher.Constraint("DistanceX", 1, 2, -1, 1, Q("0.5 mm")),
    Sketcher.Constraint("DistanceY", -1, 1, 1, 2, Q("7.5 mm")),
])
sketch7.setExpression("Constraints[9]", "Params.sketch7_diameter")
sketch7.setExpression("Constraints[10]", "Params.sketch7_width")
sketch7.setExpression("Constraints[11]", "Params.sketch7_height")
pad3 = body.newObject("PartDesign::Pad", "Pad002")
pad3.Profile = sketch7
pad3.setExpression("Length", "Params.pad3_length")

# Sketch on YZ plane
sketch8 = body.newObject("Sketcher::SketchObject", "Sketch007")
sketch8.AttachmentSupport = (doc.getObject("YZ_Plane"), [""])
sketch8.MapMode = "FlatFace"
sketch8.addGeometry([
    Part.LineSegment(Vector(73.026779, 64.377242, 0), Vector(53.378521, 68.111671, 0)),  # 0
    Part.LineSegment(Vector(53.378521, 68.111671, 0), Vector(52.818357, 65.164432, 0)),  # 1
    Part.LineSegment(Vector(52.818357, 65.164432, 0), Vector(72.466615, 61.430003, 0)),  # 2
    Part.LineSegment(Vector(72.466615, 61.430003, 0), Vector(73.026779, 64.377242, 0)),  # 3
    Part.LineSegment(Vector(134.427585, 52.707152, 0), Vector(119.691392, 55.507973, 0)),  # 4
    Part.LineSegment(Vector(119.691392, 55.507973, 0), Vector(119.131228, 52.560735, 0)),  # 5
    Part.LineSegment(Vector(119.131228, 52.560735, 0), Vector(133.867421, 49.759913, 0)),  # 6
    Part.LineSegment(Vector(133.867421, 49.759913, 0), Vector(134.427585, 52.707152, 0)),  # 7
    Part.LineSegment(Vector(53.323664, -49.054577, 0), Vector(40.391956, -64.311409, 0)),  # 8
    Part.LineSegment(Vector(40.391956, -64.311409, 0), Vector(42.680481, -66.251166, 0)),  # 9
    Part.LineSegment(Vector(42.680481, -66.251166, 0), Vector(55.612189, -50.994333, 0)),  # 10
    Part.LineSegment(Vector(55.612189, -50.994333, 0), Vector(53.323664, -49.054577, 0)),  # 11
    Part.LineSegment(Vector(34.5, 27.931502, 0), Vector(31.5, 27.931502, 0)),  # 12
    Part.LineSegment(Vector(31.5, 27.931502, 0), Vector(31.5, 7.931502, 0)),  # 13
    Part.LineSegment(Vector(31.5, 7.931502, 0), Vector(34.5, 7.931502, 0)),  # 14
    Part.LineSegment(Vector(34.5, 7.931502, 0), Vector(34.5, 27.931502, 0)),  # 15
], False)
sketch8.addConstraint([
    Sketcher.Constraint("Coincident", 0, 2, 1, 1),
    Sketcher.Constraint("Coincident", 1, 2, 2, 1),
    Sketcher.Constraint("Coincident", 2, 2, 3, 1),
    Sketcher.Constraint("Coincident", 3, 2, 0, 1),
    Sketcher.Constraint("Coincident", 4, 2, 5, 1),
    Sketcher.Constraint("Coincident", 5, 2, 6, 1),
    Sketcher.Constraint("Coincident", 6, 2, 7, 1),
    Sketcher.Constraint("Coincident", 7, 2, 4, 1),
    Sketcher.Constraint("Coincident", 8, 2, 9, 1),
    Sketcher.Constraint("Coincident", 9, 2, 10, 1),
    Sketcher.Constraint("Coincident", 10, 2, 11, 1),
    Sketcher.Constraint("Coincident", 11, 2, 8, 1),
    Sketcher.Constraint("Coincident", 12, 2, 13, 1),
    Sketcher.Constraint("Coincident", 13, 2, 14, 1),
    Sketcher.Constraint("Coincident", 14, 2, 15, 1),
    Sketcher.Constraint("Coincident", 15, 2, 12, 1),
    Sketcher.Constraint("Horizontal", 12),
    Sketcher.Constraint("Vertical", 13),
    Sketcher.Constraint("Horizontal", 14),
    Sketcher.Constraint("Vertical", 15),
    Sketcher.Constraint("Perpendicular", 0, 1),
    Sketcher.Constraint("Perpendicular", 1, 2),
    Sketcher.Constraint("Perpendicular", 2, 3),
    Sketcher.Constraint("Perpendicular", 3, 4),
    Sketcher.Constraint("Perpendicular", 4, 5),
    Sketcher.Constraint("Perpendicular", 5, 6),
    Sketcher.Constraint("Perpendicular", 6, 7),
    Sketcher.Constraint("Perpendicular", 8, 9),
    Sketcher.Constraint("Perpendicular", 9, 10),
    Sketcher.Constraint("Perpendicular", 10, 11),
    Sketcher.Constraint("Equal", 3, 5),
    Sketcher.Constraint("Equal", 2, 8),
    Sketcher.Constraint("Equal", 7, 9),
    Sketcher.Constraint("DistanceX", 12, 2, 12, 1, Q("3 mm")),
    Sketcher.Constraint("DistanceY", 13, 2, 13, 1, Q("20 mm")),
    Sketcher.Constraint("Distance", 0, Q("20 mm")),
    Sketcher.Constraint("Distance", 1, Q("3 mm")),
    Sketcher.Constraint("Distance", 4, Q("15 mm")),
    Sketcher.Constraint("DistanceX", -1, 1, 12, 2, Q("31.5 mm")),
    Sketcher.Constraint("DistanceX", 8, 2, 1, 2, Q("12.426401 mm")),
    Sketcher.Constraint("DistanceX", 9, 2, 3, 2, Q("30.346298 mm")),
    Sketcher.Constraint("DistanceY", 12, 2, 2, 2, Q("33.498501 mm")),
    Sketcher.Constraint("DistanceX", -1, 1, 0, 2, Q("53.378521 mm")),
    Sketcher.Constraint("DistanceY", -1, 1, 0, 2, Q("68.111671 mm")),
    Sketcher.Constraint("DistanceX", -1, 1, 3, 2, Q("73.026779 mm")),
    Sketcher.Constraint("DistanceX", -1, 1, 4, 2, Q("119.691392 mm")),
    Sketcher.Constraint("DistanceY", -1, 1, 7, 2, Q("52.707152 mm")),
    Sketcher.Constraint("DistanceY", 8, 2, -1, 1, Q("64.311409 mm")),
])
sketch8.setExpression("Constraints[33]", "Params.sketch8_width")
sketch8.setExpression("Constraints[34]", "Params.sketch8_height")
sketch8.setExpression("Constraints[35]", "Params.sketch8_length")
sketch8.setExpression("Constraints[36]", "Params.sketch8_length2")
sketch8.setExpression("Constraints[37]", "Params.sketch8_length3")
pocket5 = body.newObject("PartDesign::Pocket", "Pocket004")
pocket5.Profile = sketch8
pocket5.Type = "ThroughAll"
pocket5.Midplane = True

# Sketch on YZ plane
sketch9 = body.newObject("Sketcher::SketchObject", "Sketch008")
sketch9.AttachmentSupport = (doc.getObject("YZ_Plane"), [""])
sketch9.MapMode = "FlatFace"
sketch9.addGeometry([
    Part.LineSegment(Vector(33, -90.818182, 0), Vector(30, -90.818182, 0)),
    Part.LineSegment(Vector(30, -90.818182, 0), Vector(30, -118.659091, 0)),
    Part.LineSegment(Vector(30, -118.659091, 0), Vector(33, -118.659091, 0)),
    Part.LineSegment(Vector(33, -118.659091, 0), Vector(33, -90.818182, 0)),
], False)
sketch9.addConstraint([
    Sketcher.Constraint("Coincident", 0, 2, 1, 1),
    Sketcher.Constraint("Coincident", 1, 2, 2, 1),
    Sketcher.Constraint("Coincident", 2, 2, 3, 1),
    Sketcher.Constraint("Coincident", 3, 2, 0, 1),
    Sketcher.Constraint("Horizontal", 0),
    Sketcher.Constraint("Vertical", 1),
    Sketcher.Constraint("Horizontal", 2),
    Sketcher.Constraint("Vertical", 3),
    Sketcher.Constraint("DistanceX", 0, 2, 0, 1, Q("3 mm")),
    Sketcher.Constraint("DistanceX", -1, 1, 0, 2, Q("30 mm")),
    Sketcher.Constraint("DistanceY", 1, 2, 1, 1, Q("27.840909 mm")),
    Sketcher.Constraint("DistanceY", 0, 2, -1, 1, Q("90.818182 mm")),
])
sketch9.setExpression("Constraints[8]", "Params.sketch9_width")
pocket6 = body.newObject("PartDesign::Pocket", "Pocket005")
pocket6.Profile = sketch9
pocket6.Type = "ThroughAll"
pocket6.Midplane = True

doc.recompute()
